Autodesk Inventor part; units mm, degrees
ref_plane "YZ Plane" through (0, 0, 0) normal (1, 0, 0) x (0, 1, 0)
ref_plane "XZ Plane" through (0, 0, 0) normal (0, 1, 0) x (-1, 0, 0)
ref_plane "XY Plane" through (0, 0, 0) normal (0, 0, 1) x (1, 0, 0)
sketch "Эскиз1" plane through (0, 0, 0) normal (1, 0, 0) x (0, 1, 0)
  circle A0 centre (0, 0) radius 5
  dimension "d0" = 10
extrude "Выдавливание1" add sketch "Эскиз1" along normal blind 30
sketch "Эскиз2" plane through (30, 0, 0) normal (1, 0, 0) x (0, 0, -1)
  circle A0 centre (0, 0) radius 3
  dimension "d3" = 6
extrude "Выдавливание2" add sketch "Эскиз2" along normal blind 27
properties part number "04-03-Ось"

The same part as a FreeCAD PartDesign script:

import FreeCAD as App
import Part
import Sketcher
Q = App.Units.Quantity

doc = App.newDocument("Part")
params = doc.addObject("Spreadsheet::Sheet", "Params")
for row, (alias, value) in enumerate([
    ("sketch1_diameter", "10 mm"),
    ("pad1_length", "30 mm"),
    ("sketch2_diameter", "6 mm"),
    ("pad2_length", "27 mm"),
], start=1):
    params.set(f"A{row}", alias)
    params.set(f"B{row}", "=" + value)
    params.setAlias(f"B{row}", alias)

body = doc.addObject("PartDesign::Body", "Body")

sketch1 = doc.addObject("Sketcher::SketchObject", "Sketch")
body.addObject(sketch1)
sketch1.AttachmentSupport = (doc.YZ_Plane, [""])
sketch1.MapMode = "FlatFace"
sketch1.addGeometry(Part.Circle(App.Vector(0, 0, 0), App.Vector(0, 0, 1), 5), False)
sketch1.addConstraint(Sketcher.Constraint("Coincident", 0, 3, -1, 1))
sketch1.addConstraint(Sketcher.Constraint("Diameter", 0, Q("10 mm")))
sketch1.setExpression("Constraints[1]", "Params.sketch1_diameter")
pad1 = doc.addObject("PartDesign::Pad", "Pad")
body.addObject(pad1)
pad1.Profile = sketch1
pad1.setExpression("Length", "Params.pad1_length")

sketch2 = doc.addObject("Sketcher::SketchObject", "Sketch001")
body.addObject(sketch2)
sketch2.AttachmentSupport = (doc.YZ_Plane, [""])
sketch2.MapMode = "FlatFace"
sketch2.AttachmentOffset = App.Placement(App.Vector(0, 0, 30), App.Rotation())
sketch2.addGeometry(Part.Circle(App.Vector(0, 0, 0), App.Vector(0, 0, 1), 3), False)
sketch2.addConstraint(Sketcher.Constraint("Coincident", 0, 3, -1, 1))
sketch2.addConstraint(Sketcher.Constraint("Diameter", 0, Q("6 mm")))
sketch2.setExpression("Constraints[1]", "Params.sketch2_diameter")
pad2 = doc.addObject("PartDesign::Pad", "Pad001")
body.addObject(pad2)
pad2.Profile = sketch2
pad2.setExpression("Length", "Params.pad2_length")

doc.recompute()
